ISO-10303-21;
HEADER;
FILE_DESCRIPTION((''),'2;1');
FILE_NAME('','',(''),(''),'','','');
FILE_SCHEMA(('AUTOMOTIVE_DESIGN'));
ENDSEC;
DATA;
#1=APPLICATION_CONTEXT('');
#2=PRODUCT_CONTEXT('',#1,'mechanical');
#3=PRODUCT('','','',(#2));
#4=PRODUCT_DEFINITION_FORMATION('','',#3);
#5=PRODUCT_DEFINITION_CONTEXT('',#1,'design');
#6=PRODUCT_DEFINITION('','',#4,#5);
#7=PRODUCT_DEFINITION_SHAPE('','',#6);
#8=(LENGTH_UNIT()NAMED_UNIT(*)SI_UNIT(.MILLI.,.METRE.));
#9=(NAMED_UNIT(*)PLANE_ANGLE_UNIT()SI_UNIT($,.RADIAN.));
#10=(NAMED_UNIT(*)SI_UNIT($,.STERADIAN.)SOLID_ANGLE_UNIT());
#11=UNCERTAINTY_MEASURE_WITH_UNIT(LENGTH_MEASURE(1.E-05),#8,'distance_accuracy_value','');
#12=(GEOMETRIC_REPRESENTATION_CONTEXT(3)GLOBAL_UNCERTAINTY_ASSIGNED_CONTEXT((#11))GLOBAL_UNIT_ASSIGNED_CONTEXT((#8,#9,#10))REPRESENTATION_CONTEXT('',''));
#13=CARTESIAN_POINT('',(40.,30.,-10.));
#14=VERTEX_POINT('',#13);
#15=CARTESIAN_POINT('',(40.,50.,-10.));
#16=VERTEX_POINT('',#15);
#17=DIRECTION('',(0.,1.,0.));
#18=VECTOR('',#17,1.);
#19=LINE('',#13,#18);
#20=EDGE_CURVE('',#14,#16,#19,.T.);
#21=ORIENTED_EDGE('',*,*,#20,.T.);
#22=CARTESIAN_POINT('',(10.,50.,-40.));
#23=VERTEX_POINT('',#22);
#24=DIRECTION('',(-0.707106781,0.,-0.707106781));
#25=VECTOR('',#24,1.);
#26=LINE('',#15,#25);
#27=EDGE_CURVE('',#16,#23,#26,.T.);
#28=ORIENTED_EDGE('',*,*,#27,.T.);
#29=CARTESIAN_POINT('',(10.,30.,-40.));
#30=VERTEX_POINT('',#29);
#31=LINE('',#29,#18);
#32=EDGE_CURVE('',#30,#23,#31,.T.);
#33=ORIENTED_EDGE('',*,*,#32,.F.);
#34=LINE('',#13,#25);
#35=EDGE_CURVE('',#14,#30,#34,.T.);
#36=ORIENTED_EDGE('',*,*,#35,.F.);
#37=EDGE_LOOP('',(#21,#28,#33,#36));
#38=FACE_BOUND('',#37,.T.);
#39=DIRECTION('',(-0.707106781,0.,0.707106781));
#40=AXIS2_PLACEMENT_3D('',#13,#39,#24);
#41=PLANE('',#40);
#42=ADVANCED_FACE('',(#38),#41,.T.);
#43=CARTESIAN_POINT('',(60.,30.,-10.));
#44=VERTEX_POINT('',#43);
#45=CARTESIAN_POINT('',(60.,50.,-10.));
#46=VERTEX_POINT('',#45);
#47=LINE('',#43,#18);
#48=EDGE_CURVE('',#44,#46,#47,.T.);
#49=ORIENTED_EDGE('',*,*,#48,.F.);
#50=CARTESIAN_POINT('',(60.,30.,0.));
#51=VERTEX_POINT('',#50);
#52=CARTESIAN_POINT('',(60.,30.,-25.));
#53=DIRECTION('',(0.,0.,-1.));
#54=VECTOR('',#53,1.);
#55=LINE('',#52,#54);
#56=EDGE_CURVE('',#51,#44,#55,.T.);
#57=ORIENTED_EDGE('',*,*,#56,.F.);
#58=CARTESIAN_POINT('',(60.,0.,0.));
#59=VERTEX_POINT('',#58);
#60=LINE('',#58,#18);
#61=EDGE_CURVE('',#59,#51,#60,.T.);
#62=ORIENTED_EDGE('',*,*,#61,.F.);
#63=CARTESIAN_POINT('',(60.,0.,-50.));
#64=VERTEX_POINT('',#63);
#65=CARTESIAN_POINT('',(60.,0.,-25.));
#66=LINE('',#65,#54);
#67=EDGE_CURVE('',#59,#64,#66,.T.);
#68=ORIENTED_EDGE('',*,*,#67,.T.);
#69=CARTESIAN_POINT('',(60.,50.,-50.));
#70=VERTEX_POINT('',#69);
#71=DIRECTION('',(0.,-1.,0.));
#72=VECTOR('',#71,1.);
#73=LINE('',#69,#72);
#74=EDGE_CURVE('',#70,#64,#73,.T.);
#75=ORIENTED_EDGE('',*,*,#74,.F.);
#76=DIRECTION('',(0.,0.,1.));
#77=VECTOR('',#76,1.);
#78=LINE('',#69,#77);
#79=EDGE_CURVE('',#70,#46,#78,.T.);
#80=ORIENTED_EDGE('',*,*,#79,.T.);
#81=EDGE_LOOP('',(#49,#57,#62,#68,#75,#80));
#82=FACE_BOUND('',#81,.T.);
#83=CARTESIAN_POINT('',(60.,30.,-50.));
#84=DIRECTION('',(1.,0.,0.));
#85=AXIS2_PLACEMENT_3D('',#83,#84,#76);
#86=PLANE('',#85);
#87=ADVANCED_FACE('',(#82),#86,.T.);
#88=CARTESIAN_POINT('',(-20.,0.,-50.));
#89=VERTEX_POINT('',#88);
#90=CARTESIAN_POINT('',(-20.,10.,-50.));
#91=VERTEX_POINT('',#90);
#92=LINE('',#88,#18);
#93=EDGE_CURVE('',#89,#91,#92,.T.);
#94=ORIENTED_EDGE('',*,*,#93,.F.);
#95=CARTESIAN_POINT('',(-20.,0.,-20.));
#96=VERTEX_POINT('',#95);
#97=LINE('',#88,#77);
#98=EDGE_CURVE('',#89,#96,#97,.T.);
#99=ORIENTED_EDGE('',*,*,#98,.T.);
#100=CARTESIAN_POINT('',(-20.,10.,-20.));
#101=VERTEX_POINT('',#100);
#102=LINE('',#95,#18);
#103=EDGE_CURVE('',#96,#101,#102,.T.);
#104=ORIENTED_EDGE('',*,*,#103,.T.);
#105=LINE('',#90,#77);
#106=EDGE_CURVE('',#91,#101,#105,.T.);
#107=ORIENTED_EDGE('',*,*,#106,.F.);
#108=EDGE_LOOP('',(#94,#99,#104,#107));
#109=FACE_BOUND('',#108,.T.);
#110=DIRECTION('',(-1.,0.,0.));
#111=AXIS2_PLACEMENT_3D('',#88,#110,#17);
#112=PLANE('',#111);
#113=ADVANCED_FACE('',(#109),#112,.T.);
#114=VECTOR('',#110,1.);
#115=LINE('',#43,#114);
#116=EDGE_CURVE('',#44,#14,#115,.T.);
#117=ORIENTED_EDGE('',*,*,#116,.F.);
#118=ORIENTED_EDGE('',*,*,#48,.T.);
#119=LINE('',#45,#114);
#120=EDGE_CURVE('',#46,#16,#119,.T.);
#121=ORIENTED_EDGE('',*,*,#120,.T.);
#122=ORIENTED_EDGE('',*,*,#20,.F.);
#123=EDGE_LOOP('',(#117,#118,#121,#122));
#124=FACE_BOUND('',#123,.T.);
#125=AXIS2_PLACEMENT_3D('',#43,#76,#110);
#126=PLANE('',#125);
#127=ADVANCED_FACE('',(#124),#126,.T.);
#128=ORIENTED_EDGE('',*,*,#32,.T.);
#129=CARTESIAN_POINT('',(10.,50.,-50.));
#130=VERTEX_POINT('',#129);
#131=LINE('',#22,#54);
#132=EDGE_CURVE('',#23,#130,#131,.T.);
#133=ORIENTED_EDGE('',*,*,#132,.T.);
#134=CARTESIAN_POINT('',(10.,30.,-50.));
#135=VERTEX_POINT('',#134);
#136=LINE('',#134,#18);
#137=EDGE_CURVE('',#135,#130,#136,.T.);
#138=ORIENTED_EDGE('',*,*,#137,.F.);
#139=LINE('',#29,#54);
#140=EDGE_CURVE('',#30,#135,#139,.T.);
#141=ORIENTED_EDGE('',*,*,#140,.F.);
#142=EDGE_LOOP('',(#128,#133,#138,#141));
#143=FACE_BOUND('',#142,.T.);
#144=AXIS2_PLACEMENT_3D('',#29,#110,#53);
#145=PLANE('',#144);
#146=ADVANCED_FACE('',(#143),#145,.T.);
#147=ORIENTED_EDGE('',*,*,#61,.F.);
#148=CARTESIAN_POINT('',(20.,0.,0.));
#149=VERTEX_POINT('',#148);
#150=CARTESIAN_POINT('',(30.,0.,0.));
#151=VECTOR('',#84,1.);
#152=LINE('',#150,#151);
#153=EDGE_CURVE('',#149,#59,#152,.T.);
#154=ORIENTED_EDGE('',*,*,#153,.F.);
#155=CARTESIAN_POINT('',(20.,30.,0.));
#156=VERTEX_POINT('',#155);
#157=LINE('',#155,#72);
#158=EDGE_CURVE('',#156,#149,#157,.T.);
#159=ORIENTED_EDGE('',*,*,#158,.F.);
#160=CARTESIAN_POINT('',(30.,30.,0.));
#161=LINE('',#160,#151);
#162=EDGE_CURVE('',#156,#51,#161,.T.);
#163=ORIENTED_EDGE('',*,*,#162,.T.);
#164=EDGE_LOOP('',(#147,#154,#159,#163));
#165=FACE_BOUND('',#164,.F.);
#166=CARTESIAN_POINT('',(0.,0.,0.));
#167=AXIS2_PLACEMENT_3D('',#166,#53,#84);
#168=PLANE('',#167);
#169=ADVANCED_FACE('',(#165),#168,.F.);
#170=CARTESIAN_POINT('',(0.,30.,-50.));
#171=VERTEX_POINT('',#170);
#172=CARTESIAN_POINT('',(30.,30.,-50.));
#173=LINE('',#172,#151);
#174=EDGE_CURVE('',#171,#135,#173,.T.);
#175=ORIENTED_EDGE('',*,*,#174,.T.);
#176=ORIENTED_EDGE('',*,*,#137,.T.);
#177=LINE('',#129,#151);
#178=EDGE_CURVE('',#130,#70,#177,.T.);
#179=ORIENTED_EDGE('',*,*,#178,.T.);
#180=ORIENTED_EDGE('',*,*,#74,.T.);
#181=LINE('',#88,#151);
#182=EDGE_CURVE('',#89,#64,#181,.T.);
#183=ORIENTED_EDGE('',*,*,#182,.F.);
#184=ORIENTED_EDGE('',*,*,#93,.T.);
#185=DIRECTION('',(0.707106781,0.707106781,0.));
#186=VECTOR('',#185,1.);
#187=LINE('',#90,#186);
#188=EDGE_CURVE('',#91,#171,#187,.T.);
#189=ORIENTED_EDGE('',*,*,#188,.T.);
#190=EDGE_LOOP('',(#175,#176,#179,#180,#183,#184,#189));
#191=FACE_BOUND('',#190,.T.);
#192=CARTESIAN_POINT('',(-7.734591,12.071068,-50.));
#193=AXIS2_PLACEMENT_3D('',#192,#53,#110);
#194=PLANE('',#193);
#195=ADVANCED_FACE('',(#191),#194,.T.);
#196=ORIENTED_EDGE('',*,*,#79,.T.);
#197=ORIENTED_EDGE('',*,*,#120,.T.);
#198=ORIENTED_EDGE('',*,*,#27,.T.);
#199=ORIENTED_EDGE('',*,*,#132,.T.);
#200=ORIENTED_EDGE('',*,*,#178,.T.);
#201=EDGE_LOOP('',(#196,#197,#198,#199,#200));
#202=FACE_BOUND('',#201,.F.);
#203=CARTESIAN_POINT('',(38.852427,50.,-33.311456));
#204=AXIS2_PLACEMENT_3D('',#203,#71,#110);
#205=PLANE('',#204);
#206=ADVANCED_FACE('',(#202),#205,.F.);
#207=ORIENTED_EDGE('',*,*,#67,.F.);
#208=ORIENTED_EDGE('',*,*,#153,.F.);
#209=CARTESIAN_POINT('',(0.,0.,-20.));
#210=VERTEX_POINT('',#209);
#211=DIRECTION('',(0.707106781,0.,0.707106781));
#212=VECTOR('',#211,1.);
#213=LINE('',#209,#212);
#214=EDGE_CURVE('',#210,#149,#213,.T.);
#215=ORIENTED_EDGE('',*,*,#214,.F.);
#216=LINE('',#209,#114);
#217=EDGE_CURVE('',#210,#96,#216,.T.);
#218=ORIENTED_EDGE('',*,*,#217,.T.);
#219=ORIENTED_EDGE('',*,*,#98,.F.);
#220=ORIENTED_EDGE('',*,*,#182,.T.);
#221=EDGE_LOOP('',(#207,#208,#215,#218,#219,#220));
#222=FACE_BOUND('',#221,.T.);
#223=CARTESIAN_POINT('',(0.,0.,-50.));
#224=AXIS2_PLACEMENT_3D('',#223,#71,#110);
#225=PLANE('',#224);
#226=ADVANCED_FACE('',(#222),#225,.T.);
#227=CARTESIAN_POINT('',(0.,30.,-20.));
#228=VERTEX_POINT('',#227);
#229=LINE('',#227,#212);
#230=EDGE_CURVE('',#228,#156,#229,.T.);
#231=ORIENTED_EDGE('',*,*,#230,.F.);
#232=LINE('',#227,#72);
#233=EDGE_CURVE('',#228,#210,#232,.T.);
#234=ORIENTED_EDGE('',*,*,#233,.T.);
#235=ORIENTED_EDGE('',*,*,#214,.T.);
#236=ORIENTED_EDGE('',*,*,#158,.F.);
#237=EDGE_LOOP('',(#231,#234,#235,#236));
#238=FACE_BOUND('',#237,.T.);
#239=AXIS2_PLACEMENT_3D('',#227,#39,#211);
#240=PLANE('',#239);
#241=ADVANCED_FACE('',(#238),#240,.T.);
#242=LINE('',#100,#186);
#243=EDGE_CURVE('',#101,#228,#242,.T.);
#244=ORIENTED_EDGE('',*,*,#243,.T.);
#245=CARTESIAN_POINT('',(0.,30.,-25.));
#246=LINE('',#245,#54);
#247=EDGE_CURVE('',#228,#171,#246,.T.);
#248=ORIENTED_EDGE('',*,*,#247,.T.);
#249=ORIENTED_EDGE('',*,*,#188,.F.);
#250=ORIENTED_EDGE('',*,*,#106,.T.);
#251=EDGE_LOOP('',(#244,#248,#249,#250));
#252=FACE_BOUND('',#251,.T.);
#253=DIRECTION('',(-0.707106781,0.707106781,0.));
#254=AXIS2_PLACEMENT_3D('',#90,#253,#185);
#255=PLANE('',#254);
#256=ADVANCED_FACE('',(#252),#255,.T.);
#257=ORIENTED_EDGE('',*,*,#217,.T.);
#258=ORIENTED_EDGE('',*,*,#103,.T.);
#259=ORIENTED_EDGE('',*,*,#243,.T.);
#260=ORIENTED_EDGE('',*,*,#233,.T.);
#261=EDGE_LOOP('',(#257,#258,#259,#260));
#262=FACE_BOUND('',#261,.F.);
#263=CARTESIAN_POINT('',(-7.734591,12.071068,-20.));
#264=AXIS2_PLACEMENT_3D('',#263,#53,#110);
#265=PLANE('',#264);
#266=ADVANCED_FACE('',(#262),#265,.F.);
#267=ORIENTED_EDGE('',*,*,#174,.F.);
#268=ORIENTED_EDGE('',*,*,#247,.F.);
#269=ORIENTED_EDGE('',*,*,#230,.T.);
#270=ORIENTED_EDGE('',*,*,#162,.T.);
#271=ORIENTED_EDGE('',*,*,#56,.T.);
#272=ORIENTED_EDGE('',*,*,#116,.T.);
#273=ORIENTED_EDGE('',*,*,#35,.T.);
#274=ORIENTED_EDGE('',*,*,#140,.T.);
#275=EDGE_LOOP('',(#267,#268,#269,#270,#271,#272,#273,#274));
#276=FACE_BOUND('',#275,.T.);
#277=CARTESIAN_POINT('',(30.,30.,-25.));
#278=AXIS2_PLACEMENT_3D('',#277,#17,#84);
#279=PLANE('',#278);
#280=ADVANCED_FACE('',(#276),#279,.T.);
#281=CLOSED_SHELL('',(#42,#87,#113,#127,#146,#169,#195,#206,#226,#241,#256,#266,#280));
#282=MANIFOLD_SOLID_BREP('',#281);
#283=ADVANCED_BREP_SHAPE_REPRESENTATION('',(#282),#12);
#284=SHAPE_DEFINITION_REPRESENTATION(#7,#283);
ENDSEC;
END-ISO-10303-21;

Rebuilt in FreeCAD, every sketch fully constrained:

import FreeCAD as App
import Part
import Sketcher
from FreeCAD import Vector
Q = App.Units.Quantity

doc = App.newDocument("Part")
body = doc.addObject("PartDesign::Body", "Body")

sketch1 = body.newObject("Sketcher::SketchObject", "Sketch")
sketch1.AttachmentSupport = (doc.getObject("XZ_Plane"), [""])
sketch1.MapMode = "FlatFace"
sketch1.addGeometry(Part.LineSegment(Vector(0, -50, 0), Vector(0, 0, 0)), False)
sketch1.addGeometry(Part.LineSegment(Vector(0, 0, 0), Vector(60, 0, 0)), False)
sketch1.addGeometry(Part.LineSegment(Vector(60, 0, 0), Vector(60, -50, 0)), False)
sketch1.addGeometry(Part.LineSegment(Vector(60, -50, 0), Vector(0, -50, 0)), False)
sketch1.addConstraint(Sketcher.Constraint("Coincident", 0, 2, 1, 1))
sketch1.addConstraint(Sketcher.Constraint("Coincident", 1, 2, 2, 1))
sketch1.addConstraint(Sketcher.Constraint("Coincident", 2, 2, 3, 1))
sketch1.addConstraint(Sketcher.Constraint("Coincident", 3, 2, 0, 1))
sketch1.addConstraint(Sketcher.Constraint("Vertical", 0))
sketch1.addConstraint(Sketcher.Constraint("Horizontal", 1))
sketch1.addConstraint(Sketcher.Constraint("Vertical", 2))
sketch1.addConstraint(Sketcher.Constraint("Horizontal", 3))
sketch1.addConstraint(Sketcher.Constraint("Coincident", 0, 2, -1, 1))
sketch1.addConstraint(Sketcher.Constraint("DistanceX", 1, 1, 1, 2, Q("60 mm")))
sketch1.addConstraint(Sketcher.Constraint("DistanceY", 0, 1, 0, 2, Q("50 mm")))
pad1 = body.newObject("PartDesign::Pad", "Pad")
pad1.Profile = sketch1
pad1.Length = 30
pad1.Reversed = True

sketch2 = body.newObject("Sketcher::SketchObject", "Sketch001")
sketch2.AttachmentSupport = (doc.getObject("XZ_Plane"), [""])
sketch2.MapMode = "FlatFace"
sketch2.AttachmentOffset = App.Placement(Vector(0, 0, -30), App.Rotation())
sketch2.addGeometry(Part.LineSegment(Vector(20, 0, 0), Vector(0, -20, 0)), False)
sketch2.addGeometry(Part.LineSegment(Vector(0, -20, 0), Vector(0, 0, 0)), False)
sketch2.addGeometry(Part.LineSegment(Vector(0, 0, 0), Vector(20, 0, 0)), False)
sketch2.addConstraint(Sketcher.Constraint("Coincident", 0, 2, 1, 1))
sketch2.addConstraint(Sketcher.Constraint("Coincident", 1, 2, 2, 1))
sketch2.addConstraint(Sketcher.Constraint("Coincident", 2, 2, 0, 1))
sketch2.addConstraint(Sketcher.Constraint("Vertical", 1))
sketch2.addConstraint(Sketcher.Constraint("Horizontal", 2))
sketch2.addConstraint(Sketcher.Constraint("Coincident", 1, 2, -1, 1))
sketch2.addConstraint(Sketcher.Constraint("Equal", 2, 1))
sketch2.addConstraint(Sketcher.Constraint("DistanceX", 2, 1, 2, 2, Q("20 mm")))
pocket1 = body.newObject("PartDesign::Pocket", "Pocket")
pocket1.Profile = sketch2
pocket1.Length = 30
pocket1.Reversed = True

sketch3 = body.newObject("Sketcher::SketchObject", "Sketch002")
sketch3.AttachmentSupport = (doc.getObject("XZ_Plane"), [""])
sketch3.MapMode = "FlatFace"
sketch3.AttachmentOffset = App.Placement(Vector(0, 0, -30), App.Rotation())
sketch3.addGeometry(Part.LineSegment(Vector(60, -50, 0), Vector(10, -50, 0)), False)
sketch3.addGeometry(Part.LineSegment(Vector(10, -50, 0), Vector(10, -40, 0)), False)
sketch3.addGeometry(Part.LineSegment(Vector(10, -40, 0), Vector(40, -10, 0)), False)
sketch3.addGeometry(Part.LineSegment(Vector(40, -10, 0), Vector(60, -10, 0)), False)
sketch3.addGeometry(Part.LineSegment(Vector(60, -10, 0), Vector(60, -50, 0)), False)
sketch3.addConstraint(Sketcher.Constraint("Coincident", 0, 2, 1, 1))
sketch3.addConstraint(Sketcher.Constraint("Coincident", 1, 2, 2, 1))
sketch3.addConstraint(Sketcher.Constraint("Coincident", 2, 2, 3, 1))
sketch3.addConstraint(Sketcher.Constraint("Coincident", 3, 2, 4, 1))
sketch3.addConstraint(Sketcher.Constraint("Coincident", 4, 2, 0, 1))
sketch3.addConstraint(Sketcher.Constraint("Horizontal", 0))
sketch3.addConstraint(Sketcher.Constraint("Vertical", 1))
sketch3.addConstraint(Sketcher.Constraint("Horizontal", 3))
sketch3.addConstraint(Sketcher.Constraint("Vertical", 4))
sketch3.addConstraint(Sketcher.Constraint("DistanceX", 0, 2, 0, 1, Q("50 mm")))
sketch3.addConstraint(Sketcher.Constraint("DistanceX", 3, 1, 3, 2, Q("20 mm")))
sketch3.addConstraint(Sketcher.Constraint("DistanceY", 1, 1, 1, 2, Q("10 mm")))
sketch3.addConstraint(Sketcher.Constraint("DistanceY", 4, 2, 4, 1, Q("40 mm")))
sketch3.addConstraint(Sketcher.Constraint("DistanceX", -1, 1, 0, 2, Q("10 mm")))
sketch3.addConstraint(Sketcher.Constraint("DistanceY", 0, 2, -1, 1, Q("50 mm")))
pad2 = body.newObject("PartDesign::Pad", "Pad001")
pad2.Profile = sketch3
pad2.Length = 20
pad2.Reversed = True

sketch4 = body.newObject("Sketcher::SketchObject", "Sketch003")
sketch4.AttachmentSupport = (doc.getObject("XY_Plane"), [""])
sketch4.MapMode = "FlatFace"
sketch4.AttachmentOffset = App.Placement(Vector(0, 0, -50), App.Rotation())
sketch4.addGeometry(Part.LineSegment(Vector(-20, 0, 0), Vector(-20, 10, 0)), False)
sketch4.addGeometry(Part.LineSegment(Vector(-20, 10, 0), Vector(0, 30, 0)), False)
sketch4.addGeometry(Part.LineSegment(Vector(0, 30, 0), Vector(0, 0, 0)), False)
sketch4.addGeometry(Part.LineSegment(Vector(0, 0, 0), Vector(-20, 0, 0)), False)
sketch4.addConstraint(Sketcher.Constraint("Coincident", 0, 2, 1, 1))
sketch4.addConstraint(Sketcher.Constraint("Coincident", 1, 2, 2, 1))
sketch4.addConstraint(Sketcher.Constraint("Coincident", 2, 2, 3, 1))
sketch4.addConstraint(Sketcher.Constraint("Coincident", 3, 2, 0, 1))
sketch4.addConstraint(Sketcher.Constraint("Vertical", 0))
sketch4.addConstraint(Sketcher.Constraint("Vertical", 2))
sketch4.addConstraint(Sketcher.Constraint("Horizontal", 3))
sketch4.addConstraint(Sketcher.Constraint("Coincident", 2, 2, -1, 1))
sketch4.addConstraint(Sketcher.Constraint("DistanceX", 3, 2, 3, 1, Q("20 mm")))
sketch4.addConstraint(Sketcher.Constraint("DistanceY", 0, 1, 0, 2, Q("10 mm")))
sketch4.addConstraint(Sketcher.Constraint("DistanceY", 2, 2, 2, 1, Q("30 mm")))
pad3 = body.newObject("PartDesign::Pad", "Pad002")
pad3.Profile = sketch4
pad3.Length = 30

doc.recompute()
